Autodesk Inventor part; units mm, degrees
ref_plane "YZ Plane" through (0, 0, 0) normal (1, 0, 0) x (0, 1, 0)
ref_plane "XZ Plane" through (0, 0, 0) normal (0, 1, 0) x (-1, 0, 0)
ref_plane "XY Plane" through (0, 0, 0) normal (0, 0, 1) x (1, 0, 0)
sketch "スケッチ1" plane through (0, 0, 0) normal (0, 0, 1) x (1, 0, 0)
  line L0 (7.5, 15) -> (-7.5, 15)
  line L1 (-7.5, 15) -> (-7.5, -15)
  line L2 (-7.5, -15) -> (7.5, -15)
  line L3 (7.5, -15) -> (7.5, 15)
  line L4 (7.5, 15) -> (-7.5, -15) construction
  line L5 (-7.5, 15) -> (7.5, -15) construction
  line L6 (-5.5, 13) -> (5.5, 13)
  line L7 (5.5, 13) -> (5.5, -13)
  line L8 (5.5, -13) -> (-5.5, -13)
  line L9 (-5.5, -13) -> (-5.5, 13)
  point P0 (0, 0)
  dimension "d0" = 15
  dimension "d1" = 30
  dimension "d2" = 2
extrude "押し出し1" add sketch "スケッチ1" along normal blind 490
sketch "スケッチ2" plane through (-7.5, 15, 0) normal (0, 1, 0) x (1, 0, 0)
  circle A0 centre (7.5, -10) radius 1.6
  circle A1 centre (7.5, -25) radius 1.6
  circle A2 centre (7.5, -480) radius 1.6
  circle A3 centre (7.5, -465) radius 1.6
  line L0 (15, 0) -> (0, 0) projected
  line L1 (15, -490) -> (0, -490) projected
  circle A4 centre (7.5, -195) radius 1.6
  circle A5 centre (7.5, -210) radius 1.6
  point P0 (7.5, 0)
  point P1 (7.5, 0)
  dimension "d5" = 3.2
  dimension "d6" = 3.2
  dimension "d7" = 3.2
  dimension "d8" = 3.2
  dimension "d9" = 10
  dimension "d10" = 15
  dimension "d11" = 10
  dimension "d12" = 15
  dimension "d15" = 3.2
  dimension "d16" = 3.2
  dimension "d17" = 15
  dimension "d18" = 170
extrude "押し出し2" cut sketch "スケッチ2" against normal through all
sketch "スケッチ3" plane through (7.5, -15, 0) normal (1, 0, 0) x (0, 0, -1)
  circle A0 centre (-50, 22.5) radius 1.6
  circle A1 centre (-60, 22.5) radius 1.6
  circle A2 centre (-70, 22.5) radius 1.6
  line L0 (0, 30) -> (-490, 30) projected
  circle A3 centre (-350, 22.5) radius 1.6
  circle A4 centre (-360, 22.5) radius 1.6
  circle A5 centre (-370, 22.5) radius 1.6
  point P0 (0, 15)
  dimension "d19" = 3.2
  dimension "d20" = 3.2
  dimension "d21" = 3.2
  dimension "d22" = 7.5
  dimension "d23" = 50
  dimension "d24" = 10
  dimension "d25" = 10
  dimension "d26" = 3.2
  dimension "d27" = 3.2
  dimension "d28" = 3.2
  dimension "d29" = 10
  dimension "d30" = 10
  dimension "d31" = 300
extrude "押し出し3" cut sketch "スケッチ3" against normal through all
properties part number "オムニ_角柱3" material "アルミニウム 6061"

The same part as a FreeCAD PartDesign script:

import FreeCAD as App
import Part
import Sketcher

doc = App.newDocument("Part")
body = doc.addObject("PartDesign::Body", "Body")

# Sketch on XY plane
sketch1 = body.newObject("Sketcher::SketchObject", "Sketch")
sketch1.AttachmentSupport = (doc.getObject("XY_Plane"), [""])
sketch1.MapMode = "FlatFace"
sketch1.addGeometry(Part.LineSegment(App.Vector(8, -15, 0), App.Vector(8, 15, 0)), False)
sketch1.addGeometry(Part.LineSegment(App.Vector(8, 15, 0), App.Vector(-8, 15, 0)), False)
sketch1.addGeometry(Part.LineSegment(App.Vector(-8, 15, 0), App.Vector(-8, -15, 0)), False)
sketch1.addGeometry(Part.LineSegment(App.Vector(-8, -15, 0), App.Vector(8, -15, 0)), False)
sketch1.addGeometry(Part.LineSegment(App.Vector(-6, -13, 0), App.Vector(-6, 13, 0)), False)
sketch1.addGeometry(Part.LineSegment(App.Vector(-6, 13, 0), App.Vector(6, 13, 0)), False)
sketch1.addGeometry(Part.LineSegment(App.Vector(6, 13, 0), App.Vector(6, -13, 0)), False)
sketch1.addGeometry(Part.LineSegment(App.Vector(6, -13, 0), App.Vector(-6, -13, 0)), False)
sketch1.addConstraint(Sketcher.Constraint("Coincident", 0, 2, 1, 1))
sketch1.addConstraint(Sketcher.Constraint("Coincident", 1, 2, 2, 1))
sketch1.addConstraint(Sketcher.Constraint("Coincident", 2, 2, 3, 1))
sketch1.addConstraint(Sketcher.Constraint("Coincident", 3, 2, 0, 1))
sketch1.addConstraint(Sketcher.Constraint("Coincident", 4, 2, 5, 1))
sketch1.addConstraint(Sketcher.Constraint("Coincident", 5, 2, 6, 1))
sketch1.addConstraint(Sketcher.Constraint("Coincident", 6, 2, 7, 1))
sketch1.addConstraint(Sketcher.Constraint("Coincident", 7, 2, 4, 1))
sketch1.addConstraint(Sketcher.Constraint("Vertical", 0))
sketch1.addConstraint(Sketcher.Constraint("Horizontal", 1))
sketch1.addConstraint(Sketcher.Constraint("Vertical", 2))
sketch1.addConstraint(Sketcher.Constraint("Horizontal", 3))
sketch1.addConstraint(Sketcher.Constraint("Vertical", 4))
sketch1.addConstraint(Sketcher.Constraint("Horizontal", 5))
sketch1.addConstraint(Sketcher.Constraint("Vertical", 6))
sketch1.addConstraint(Sketcher.Constraint("Horizontal", 7))
sketch1.addConstraint(Sketcher.Constraint("Symmetric", 0, 2, 2, 2, -1, 1))
sketch1.addConstraint(Sketcher.Constraint("Symmetric", 4, 2, 6, 2, -1, 1))
sketch1.addConstraint(Sketcher.Constraint("DistanceX", 1, 2, 1, 1, 15.0))
sketch1.addConstraint(Sketcher.Constraint("DistanceY", 0, 1, 0, 2, 30.0))
sketch1.addConstraint(Sketcher.Constraint("DistanceX", 1, 2, 4, 2, 2.0))
sketch1.addConstraint(Sketcher.Constraint("DistanceY", 4, 2, 1, 2, 2.0))
pad1 = body.newObject("PartDesign::Pad", "Pad")
pad1.Profile = sketch1
pad1.Length = 490

# Sketch on XZ plane
sketch2 = body.newObject("Sketcher::SketchObject", "Sketch001")
sketch2.AttachmentSupport = (doc.getObject("XZ_Plane"), [""])
sketch2.MapMode = "FlatFace"
sketch2.AttachmentOffset = App.Placement(App.Vector(0, 0, -15), App.Rotation())
sketch2.addGeometry(Part.Circle(App.Vector(0, 10, 0), App.Vector(0, 0, 1), 1.6), False)
sketch2.addGeometry(Part.Circle(App.Vector(0, 25, 0), App.Vector(0, 0, 1), 1.6), False)
sketch2.addGeometry(Part.Circle(App.Vector(0, 480, 0), App.Vector(0, 0, 1), 1.6), False)
sketch2.addGeometry(Part.Circle(App.Vector(0, 465, 0), App.Vector(0, 0, 1), 1.6), False)
sketch2.addGeometry(Part.Circle(App.Vector(0, 195, 0), App.Vector(0, 0, 1), 1.6), False)
sketch2.addGeometry(Part.Circle(App.Vector(0, 210, 0), App.Vector(0, 0, 1), 1.6), False)
sketch2.addConstraint(Sketcher.Constraint("Equal", 0, 1))
sketch2.addConstraint(Sketcher.Constraint("Equal", 1, 2))
sketch2.addConstraint(Sketcher.Constraint("Equal", 2, 3))
sketch2.addConstraint(Sketcher.Constraint("Equal", 3, 4))
sketch2.addConstraint(Sketcher.Constraint("Equal", 4, 5))
sketch2.addConstraint(Sketcher.Constraint("PointOnObject", 0, 3, -2))
sketch2.addConstraint(Sketcher.Constraint("PointOnObject", 1, 3, -2))
sketch2.addConstraint(Sketcher.Constraint("PointOnObject", 2, 3, -2))
sketch2.addConstraint(Sketcher.Constraint("PointOnObject", 3, 3, -2))
sketch2.addConstraint(Sketcher.Constraint("PointOnObject", 4, 3, -2))
sketch2.addConstraint(Sketcher.Constraint("PointOnObject", 5, 3, -2))
sketch2.addConstraint(Sketcher.Constraint("Diameter", 0, 3.2))
sketch2.addConstraint(Sketcher.Constraint("DistanceY", -1, 1, 0, 3, 10.0))
sketch2.addConstraint(Sketcher.Constraint("DistanceY", 0, 3, 1, 3, 15.0))
sketch2.addConstraint(Sketcher.Constraint("DistanceY", 3, 3, 2, 3, 15.0))
sketch2.addConstraint(Sketcher.Constraint("DistanceY", 1, 3, 4, 3, 170.0))
sketch2.addConstraint(Sketcher.Constraint("DistanceY", 4, 3, 5, 3, 15.0))
sketch2.addConstraint(Sketcher.Constraint("DistanceY", -1, 1, 2, 3, 480.0))
pocket1 = body.newObject("PartDesign::Pocket", "Pocket")
pocket1.Profile = sketch2
pocket1.Type = "ThroughAll"
pocket1.Reversed = True

# Sketch on YZ plane
sketch3 = body.newObject("Sketcher::SketchObject", "Sketch002")
sketch3.AttachmentSupport = (doc.getObject("YZ_Plane"), [""])
sketch3.MapMode = "FlatFace"
sketch3.AttachmentOffset = App.Placement(App.Vector(0, 0, 7.5), App.Rotation())
sketch3.addGeometry(Part.Circle(App.Vector(7.5, 50, 0), App.Vector(0, 0, 1), 1.6), False)
sketch3.addGeometry(Part.Circle(App.Vector(7.5, 60, 0), App.Vector(0, 0, 1), 1.6), False)
sketch3.addGeometry(Part.Circle(App.Vector(7.5, 70, 0), App.Vector(0, 0, 1), 1.6), False)
sketch3.addGeometry(Part.Circle(App.Vector(7.5, 350, 0), App.Vector(0, 0, 1), 1.6), False)
sketch3.addGeometry(Part.Circle(App.Vector(7.5, 360, 0), App.Vector(0, 0, 1), 1.6), False)
sketch3.addGeometry(Part.Circle(App.Vector(7.5, 370, 0), App.Vector(0, 0, 1), 1.6), False)
sketch3.addConstraint(Sketcher.Constraint("Equal", 0, 1))
sketch3.addConstraint(Sketcher.Constraint("Equal", 1, 2))
sketch3.addConstraint(Sketcher.Constraint("Equal", 2, 3))
sketch3.addConstraint(Sketcher.Constraint("Equal", 3, 4))
sketch3.addConstraint(Sketcher.Constraint("Equal", 4, 5))
sketch3.addConstraint(Sketcher.Constraint("Vertical", 0, 3, 1, 3))
sketch3.addConstraint(Sketcher.Constraint("Vertical", 1, 3, 2, 3))
sketch3.addConstraint(Sketcher.Constraint("Vertical", 2, 3, 3, 3))
sketch3.addConstraint(Sketcher.Constraint("Vertical", 3, 3, 4, 3))
sketch3.addConstraint(Sketcher.Constraint("Vertical", 4, 3, 5, 3))
sketch3.addConstraint(Sketcher.Constraint("Diameter", 0, 3.2))
sketch3.addConstraint(Sketcher.Constraint("DistanceY", -1, 1, 0, 3, 50.0))
sketch3.addConstraint(Sketcher.Constraint("DistanceY", 0, 3, 1, 3, 10.0))
sketch3.addConstraint(Sketcher.Constraint("DistanceY", 1, 3, 2, 3, 10.0))
sketch3.addConstraint(Sketcher.Constraint("DistanceY", 0, 3, 3, 3, 300.0))
sketch3.addConstraint(Sketcher.Constraint("DistanceY", 3, 3, 4, 3, 10.0))
sketch3.addConstraint(Sketcher.Constraint("DistanceY", 4, 3, 5, 3, 10.0))
sketch3.addConstraint(Sketcher.Constraint("DistanceX", -1, 1, 0, 3, 7.5))
pocket2 = body.newObject("PartDesign::Pocket", "Pocket001")
pocket2.Profile = sketch3
pocket2.Type = "ThroughAll"

doc.recompute()
